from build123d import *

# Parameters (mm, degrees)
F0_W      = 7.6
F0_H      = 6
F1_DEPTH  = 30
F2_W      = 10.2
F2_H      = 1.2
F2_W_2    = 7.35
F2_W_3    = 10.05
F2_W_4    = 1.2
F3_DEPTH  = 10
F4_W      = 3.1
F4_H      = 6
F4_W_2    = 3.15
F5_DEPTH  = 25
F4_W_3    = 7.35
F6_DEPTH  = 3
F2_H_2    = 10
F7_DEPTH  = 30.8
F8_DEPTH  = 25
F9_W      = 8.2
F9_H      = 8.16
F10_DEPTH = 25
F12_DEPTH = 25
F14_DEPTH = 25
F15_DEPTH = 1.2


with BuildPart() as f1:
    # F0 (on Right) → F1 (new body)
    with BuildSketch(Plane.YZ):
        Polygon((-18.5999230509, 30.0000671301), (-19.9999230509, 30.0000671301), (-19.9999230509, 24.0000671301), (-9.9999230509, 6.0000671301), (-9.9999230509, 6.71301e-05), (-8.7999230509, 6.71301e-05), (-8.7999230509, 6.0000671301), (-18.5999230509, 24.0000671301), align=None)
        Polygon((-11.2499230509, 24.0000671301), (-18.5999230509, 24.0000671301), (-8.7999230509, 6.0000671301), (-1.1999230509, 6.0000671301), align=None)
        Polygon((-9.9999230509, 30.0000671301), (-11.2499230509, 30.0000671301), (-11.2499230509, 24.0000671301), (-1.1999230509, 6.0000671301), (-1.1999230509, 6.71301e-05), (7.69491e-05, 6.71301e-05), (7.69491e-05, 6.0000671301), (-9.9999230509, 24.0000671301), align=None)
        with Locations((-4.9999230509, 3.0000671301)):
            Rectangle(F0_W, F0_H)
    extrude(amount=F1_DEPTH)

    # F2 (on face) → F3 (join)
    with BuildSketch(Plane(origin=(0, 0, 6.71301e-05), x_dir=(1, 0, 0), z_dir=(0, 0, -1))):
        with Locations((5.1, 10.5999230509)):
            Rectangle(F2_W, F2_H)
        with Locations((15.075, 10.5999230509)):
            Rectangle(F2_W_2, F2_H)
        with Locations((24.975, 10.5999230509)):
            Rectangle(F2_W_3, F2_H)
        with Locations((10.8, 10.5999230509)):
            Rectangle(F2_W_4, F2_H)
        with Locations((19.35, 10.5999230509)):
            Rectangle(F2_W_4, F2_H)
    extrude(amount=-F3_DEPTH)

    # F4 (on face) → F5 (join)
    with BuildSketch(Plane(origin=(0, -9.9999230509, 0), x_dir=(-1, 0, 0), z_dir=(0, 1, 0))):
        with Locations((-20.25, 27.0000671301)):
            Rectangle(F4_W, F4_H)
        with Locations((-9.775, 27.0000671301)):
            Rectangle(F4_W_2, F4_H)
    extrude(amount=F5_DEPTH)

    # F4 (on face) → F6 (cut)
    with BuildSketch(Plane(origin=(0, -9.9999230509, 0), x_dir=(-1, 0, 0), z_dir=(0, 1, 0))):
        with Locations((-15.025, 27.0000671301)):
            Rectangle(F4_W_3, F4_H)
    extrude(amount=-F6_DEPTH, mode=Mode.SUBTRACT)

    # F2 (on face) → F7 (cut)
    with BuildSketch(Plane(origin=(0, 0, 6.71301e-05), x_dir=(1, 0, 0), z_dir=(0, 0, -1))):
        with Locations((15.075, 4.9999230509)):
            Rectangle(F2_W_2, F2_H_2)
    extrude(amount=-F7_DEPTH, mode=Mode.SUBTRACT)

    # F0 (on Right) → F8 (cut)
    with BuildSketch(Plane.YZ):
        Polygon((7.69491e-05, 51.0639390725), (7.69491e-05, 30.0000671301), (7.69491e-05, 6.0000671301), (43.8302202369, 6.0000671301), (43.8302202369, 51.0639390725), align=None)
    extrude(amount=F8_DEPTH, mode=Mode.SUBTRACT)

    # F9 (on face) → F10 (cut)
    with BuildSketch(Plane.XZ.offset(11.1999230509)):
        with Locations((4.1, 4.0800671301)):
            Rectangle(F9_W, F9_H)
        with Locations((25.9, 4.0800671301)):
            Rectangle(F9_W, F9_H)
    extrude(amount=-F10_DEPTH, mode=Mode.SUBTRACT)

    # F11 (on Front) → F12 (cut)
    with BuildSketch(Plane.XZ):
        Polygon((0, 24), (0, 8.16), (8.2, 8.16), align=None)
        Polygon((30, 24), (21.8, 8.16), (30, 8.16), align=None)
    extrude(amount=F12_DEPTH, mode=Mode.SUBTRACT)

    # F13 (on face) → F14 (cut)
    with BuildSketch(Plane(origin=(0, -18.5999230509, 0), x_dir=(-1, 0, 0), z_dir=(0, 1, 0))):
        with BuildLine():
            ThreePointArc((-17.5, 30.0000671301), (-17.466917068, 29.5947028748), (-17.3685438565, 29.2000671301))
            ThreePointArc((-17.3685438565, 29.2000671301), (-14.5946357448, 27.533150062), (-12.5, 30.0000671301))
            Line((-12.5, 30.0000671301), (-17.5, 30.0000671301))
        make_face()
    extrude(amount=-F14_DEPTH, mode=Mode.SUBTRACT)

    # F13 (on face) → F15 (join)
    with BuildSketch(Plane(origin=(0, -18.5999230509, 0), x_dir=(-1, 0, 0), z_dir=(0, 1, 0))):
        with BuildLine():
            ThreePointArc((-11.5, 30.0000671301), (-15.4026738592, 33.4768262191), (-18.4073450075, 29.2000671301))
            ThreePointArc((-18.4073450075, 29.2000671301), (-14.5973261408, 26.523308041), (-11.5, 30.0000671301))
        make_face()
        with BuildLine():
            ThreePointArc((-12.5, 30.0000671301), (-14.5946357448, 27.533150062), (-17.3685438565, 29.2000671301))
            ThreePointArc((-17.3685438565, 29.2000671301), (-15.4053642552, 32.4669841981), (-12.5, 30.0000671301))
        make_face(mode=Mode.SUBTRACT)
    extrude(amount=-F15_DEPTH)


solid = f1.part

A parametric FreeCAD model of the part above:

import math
import FreeCAD as App
import Part
import Sketcher
from FreeCAD import Vector
Q = App.Units.Quantity

doc = App.newDocument("Part")
body = doc.addObject("PartDesign::Body", "Body")

# Sketch on YZ plane
sketch1 = doc.addObject("Sketcher::SketchObject", "Sketch")
body.addObject(sketch1)
sketch1.AttachmentSupport = (doc.YZ_Plane, [""])
sketch1.MapMode = "FlatFace"
sketch1.addGeometry(Part.LineSegment(Vector(-18.6, 30, 0), Vector(-20, 30, 0)), False)
sketch1.addGeometry(Part.LineSegment(Vector(-20, 30, 0), Vector(-20, 24, 0)), False)
sketch1.addGeometry(Part.LineSegment(Vector(-20, 24, 0), Vector(-10, 6, 0)), False)
sketch1.addGeometry(Part.LineSegment(Vector(-10, 6, 0), Vector(-10, 0, 0)), False)
sketch1.addGeometry(Part.LineSegment(Vector(-10, 0, 0), Vector(0, 0, 0)), False)
sketch1.addGeometry(Part.LineSegment(Vector(0, 0, 0), Vector(0, 6, 0)), False)
sketch1.addGeometry(Part.LineSegment(Vector(0, 6, 0), Vector(-10, 24, 0)), False)
sketch1.addGeometry(Part.LineSegment(Vector(-10, 24, 0), Vector(-10, 30, 0)), False)
sketch1.addGeometry(Part.LineSegment(Vector(-10, 30, 0), Vector(-11.2, 30, 0)), False)
sketch1.addGeometry(Part.LineSegment(Vector(-11.2, 30, 0), Vector(-11.2, 24, 0)), False)
sketch1.addGeometry(Part.LineSegment(Vector(-11.2, 24, 0), Vector(-18.6, 24, 0)), False)
sketch1.addGeometry(Part.LineSegment(Vector(-18.6, 24, 0), Vector(-18.6, 30, 0)), False)
sketch1.addConstraint(Sketcher.Constraint("Coincident", 0, 2, 1, 1))
sketch1.addConstraint(Sketcher.Constraint("Coincident", 1, 2, 2, 1))
sketch1.addConstraint(Sketcher.Constraint("Coincident", 2, 2, 3, 1))
sketch1.addConstraint(Sketcher.Constraint("Coincident", 3, 2, 4, 1))
sketch1.addConstraint(Sketcher.Constraint("Coincident", 4, 2, 5, 1))
sketch1.addConstraint(Sketcher.Constraint("Coincident", 5, 2, 6, 1))
sketch1.addConstraint(Sketcher.Constraint("Coincident", 6, 2, 7, 1))
sketch1.addConstraint(Sketcher.Constraint("Coincident", 7, 2, 8, 1))
sketch1.addConstraint(Sketcher.Constraint("Coincident", 8, 2, 9, 1))
sketch1.addConstraint(Sketcher.Constraint("Coincident", 9, 2, 10, 1))
sketch1.addConstraint(Sketcher.Constraint("Coincident", 10, 2, 11, 1))
sketch1.addConstraint(Sketcher.Constraint("Coincident", 11, 2, 0, 1))
sketch1.addConstraint(Sketcher.Constraint("Horizontal", 0))
sketch1.addConstraint(Sketcher.Constraint("Vertical", 1))
sketch1.addConstraint(Sketcher.Constraint("Vertical", 3))
sketch1.addConstraint(Sketcher.Constraint("Horizontal", 4))
sketch1.addConstraint(Sketcher.Constraint("Vertical", 5))
sketch1.addConstraint(Sketcher.Constraint("Vertical", 7))
sketch1.addConstraint(Sketcher.Constraint("Horizontal", 8))
sketch1.addConstraint(Sketcher.Constraint("Vertical", 9))
sketch1.addConstraint(Sketcher.Constraint("Horizontal", 10))
sketch1.addConstraint(Sketcher.Constraint("Vertical", 11))
sketch1.addConstraint(Sketcher.Constraint("Parallel", 2, 6))
sketch1.addConstraint(Sketcher.Constraint("Horizontal", 2, 2, 5, 2))
sketch1.addConstraint(Sketcher.Constraint("Horizontal", 1, 2, 6, 2))
sketch1.addConstraint(Sketcher.Constraint("Horizontal", 0, 2, 7, 2))
sketch1.addConstraint(Sketcher.Constraint("Horizontal", 6, 2, 9, 2))
sketch1.addConstraint(Sketcher.Constraint("Vertical", 3, 2, 6, 2))
sketch1.addConstraint(Sketcher.Constraint("Equal", 1, 3))
sketch1.addConstraint(Sketcher.Constraint("DistanceX", 4, 1, 4, 2, Q("10 mm")))
sketch1.addConstraint(Sketcher.Constraint("DistanceY", 1, 2, 1, 1, Q("6 mm")))
sketch1.addConstraint(Sketcher.Constraint("DistanceX", 0, 2, 0, 1, Q("1.4 mm")))
sketch1.addConstraint(Sketcher.Constraint("DistanceY", 2, 2, 1, 2, Q("18 mm")))
sketch1.addConstraint(Sketcher.Constraint("DistanceX", 8, 2, 8, 1, Q("1.25 mm")))
sketch1.addConstraint(Sketcher.Constraint("DistanceX", 0, 2, -1, 1, Q("19.999923 mm")))
sketch1.addConstraint(Sketcher.Constraint("DistanceY", -1, 1, 0, 2, Q("30.000067 mm")))
pad1 = doc.addObject("PartDesign::Pad", "Pad")
body.addObject(pad1)
pad1.Profile = sketch1
pad1.Length = 30

# Sketch on XY plane
sketch2 = doc.addObject("Sketcher::SketchObject", "Sketch001")
body.addObject(sketch2)
sketch2.AttachmentSupport = (doc.XY_Plane, [""])
sketch2.MapMode = "FlatFace"
sketch2.AttachmentOffset = App.Placement(Vector(0, 0, 0.000067), App.Rotation())
sketch2.addGeometry(Part.LineSegment(Vector(0, -11.2, 0), Vector(0, -10, 0)), False)
sketch2.addGeometry(Part.LineSegment(Vector(0, -10, 0), Vector(30, -10, 0)), False)
sketch2.addGeometry(Part.LineSegment(Vector(30, -10, 0), Vector(30, -11.2, 0)), False)
sketch2.addGeometry(Part.LineSegment(Vector(30, -11.2, 0), Vector(0, -11.2, 0)), False)
sketch2.addConstraint(Sketcher.Constraint("Coincident", 0, 2, 1, 1))
sketch2.addConstraint(Sketcher.Constraint("Coincident", 1, 2, 2, 1))
sketch2.addConstraint(Sketcher.Constraint("Coincident", 2, 2, 3, 1))
sketch2.addConstraint(Sketcher.Constraint("Coincident", 3, 2, 0, 1))
sketch2.addConstraint(Sketcher.Constraint("Vertical", 0))
sketch2.addConstraint(Sketcher.Constraint("Horizontal", 1))
sketch2.addConstraint(Sketcher.Constraint("Vertical", 2))
sketch2.addConstraint(Sketcher.Constraint("Horizontal", 3))
sketch2.addConstraint(Sketcher.Constraint("PointOnObject", 0, 2, -2))
sketch2.addConstraint(Sketcher.Constraint("DistanceX", 1, 1, 1, 2, Q("30 mm")))
sketch2.addConstraint(Sketcher.Constraint("DistanceY", 0, 1, 0, 2, Q("1.2 mm")))
sketch2.addConstraint(Sketcher.Constraint("DistanceY", 0, 2, -1, 1, Q("9.999923 mm")))
pad2 = doc.addObject("PartDesign::Pad", "Pad001")
body.addObject(pad2)
pad2.Profile = sketch2
pad2.Length = 10

# Sketch on XZ plane
sketch3 = doc.addObject("Sketcher::SketchObject", "Sketch002")
body.addObject(sketch3)
sketch3.AttachmentSupport = (doc.XZ_Plane, [""])
sketch3.MapMode = "FlatFace"
sketch3.AttachmentOffset = App.Placement(Vector(0, 0, 9.999923), App.Rotation())
sketch3.addGeometry(Part.LineSegment(Vector(21.8, 30, 0), Vector(21.8, 24, 0)), False)
sketch3.addGeometry(Part.LineSegment(Vector(21.8, 24, 0), Vector(18.7, 24, 0)), False)
sketch3.addGeometry(Part.LineSegment(Vector(18.7, 24, 0), Vector(18.7, 30, 0)), False)
sketch3.addGeometry(Part.LineSegment(Vector(18.7, 30, 0), Vector(21.8, 30, 0)), False)
sketch3.addGeometry(Part.LineSegment(Vector(11.3, 30, 0), Vector(11.3, 24, 0)), False)
sketch3.addGeometry(Part.LineSegment(Vector(11.3, 24, 0), Vector(8.2, 24, 0)), False)
sketch3.addGeometry(Part.LineSegment(Vector(8.2, 24, 0), Vector(8.2, 30, 0)), False)
sketch3.addGeometry(Part.LineSegment(Vector(8.2, 30, 0), Vector(11.3, 30, 0)), False)
sketch3.addConstraint(Sketcher.Constraint("Coincident", 0, 2, 1, 1))
sketch3.addConstraint(Sketcher.Constraint("Coincident", 1, 2, 2, 1))
sketch3.addConstraint(Sketcher.Constraint("Coincident", 2, 2, 3, 1))
sketch3.addConstraint(Sketcher.Constraint("Coincident", 3, 2, 0, 1))
sketch3.addConstraint(Sketcher.Constraint("Coincident", 4, 2, 5, 1))
sketch3.addConstraint(Sketcher.Constraint("Coincident", 5, 2, 6, 1))
sketch3.addConstraint(Sketcher.Constraint("Coincident", 6, 2, 7, 1))
sketch3.addConstraint(Sketcher.Constraint("Coincident", 7, 2, 4, 1))
sketch3.addConstraint(Sketcher.Constraint("Vertical", 0))
sketch3.addConstraint(Sketcher.Constraint("Horizontal", 1))
sketch3.addConstraint(Sketcher.Constraint("Vertical", 2))
sketch3.addConstraint(Sketcher.Constraint("Horizontal", 3))
sketch3.addConstraint(Sketcher.Constraint("Vertical", 4))
sketch3.addConstraint(Sketcher.Constraint("Horizontal", 5))
sketch3.addConstraint(Sketcher.Constraint("Vertical", 6))
sketch3.addConstraint(Sketcher.Constraint("Horizontal", 7))
sketch3.addConstraint(Sketcher.Constraint("Horizontal", 1, 2, 4, 2))
sketch3.addConstraint(Sketcher.Constraint("Horizontal", 3, 2, 6, 2))
sketch3.addConstraint(Sketcher.Constraint("DistanceY", 0, 2, 0, 1, Q("6 mm")))
sketch3.addConstraint(Sketcher.Constraint("DistanceX", 1, 2, 1, 1, Q("3.1 mm")))
sketch3.addConstraint(Sketcher.Constraint("DistanceX", 5, 2, 5, 1, Q("3.15 mm")))
sketch3.addConstraint(Sketcher.Constraint("DistanceX", -1, 1, 0, 2, Q("21.8 mm")))
sketch3.addConstraint(Sketcher.Constraint("DistanceX", -1, 1, 5, 2, Q("8.2 mm")))
sketch3.addConstraint(Sketcher.Constraint("DistanceY", -1, 1, 0, 2, Q("24.000067 mm")))
pad3 = doc.addObject("PartDesign::Pad", "Pad002")
body.addObject(pad3)
pad3.Profile = sketch3
pad3.Length = 25
pad3.Reversed = True

# Sketch on XZ plane
sketch4 = doc.addObject("Sketcher::SketchObject", "Sketch003")
body.addObject(sketch4)
sketch4.AttachmentSupport = (doc.XZ_Plane, [""])
sketch4.MapMode = "FlatFace"
sketch4.AttachmentOffset = App.Placement(Vector(0, 0, 9.999923), App.Rotation())
sketch4.addGeometry(Part.LineSegment(Vector(19, 30, 0), Vector(19, 24, 0)), False)
sketch4.addGeometry(Part.LineSegment(Vector(19, 24, 0), Vector(11, 24, 0)), False)
sketch4.addGeometry(Part.LineSegment(Vector(11, 24, 0), Vector(11, 30, 0)), False)
sketch4.addGeometry(Part.LineSegment(Vector(11, 30, 0), Vector(19, 30, 0)), False)
sketch4.addConstraint(Sketcher.Constraint("Coincident", 0, 2, 1, 1))
sketch4.addConstraint(Sketcher.Constraint("Coincident", 1, 2, 2, 1))
sketch4.addConstraint(Sketcher.Constraint("Coincident", 2, 2, 3, 1))
sketch4.addConstraint(Sketcher.Constraint("Coincident", 3, 2, 0, 1))
sketch4.addConstraint(Sketcher.Constraint("Vertical", 0))
sketch4.addConstraint(Sketcher.Constraint("Horizontal", 1))
sketch4.addConstraint(Sketcher.Constraint("Vertical", 2))
sketch4.addConstraint(Sketcher.Constraint("Horizontal", 3))
sketch4.addConstraint(Sketcher.Constraint("DistanceY", 0, 2, 0, 1, Q("6 mm")))
sketch4.addConstraint(Sketcher.Constraint("DistanceX", 1, 2, 1, 1, Q("7.35 mm")))
sketch4.addConstraint(Sketcher.Constraint("DistanceX", -1, 1, 0, 2, Q("18.7 mm")))
sketch4.addConstraint(Sketcher.Constraint("DistanceY", -1, 1, 0, 2, Q("24.000067 mm")))
pocket1 = doc.addObject("PartDesign::Pocket", "Pocket")
body.addObject(pocket1)
pocket1.Profile = sketch4
pocket1.Length = 3
pocket1.Reversed = True

# Sketch on XY plane
sketch5 = doc.addObject("Sketcher::SketchObject", "Sketch004")
body.addObject(sketch5)
sketch5.AttachmentSupport = (doc.XY_Plane, [""])
sketch5.MapMode = "FlatFace"
sketch5.AttachmentOffset = App.Placement(Vector(0, 0, 0.000067), App.Rotation())
sketch5.addGeometry(Part.LineSegment(Vector(11, -10, 0), Vector(11, 0, 0)), False)
sketch5.addGeometry(Part.LineSegment(Vector(11, 0, 0), Vector(19, 0, 0)), False)
sketch5.addGeometry(Part.LineSegment(Vector(19, 0, 0), Vector(19, -10, 0)), False)
sketch5.addGeometry(Part.LineSegment(Vector(19, -10, 0), Vector(11, -10, 0)), False)
sketch5.addConstraint(Sketcher.Constraint("Coincident", 0, 2, 1, 1))
sketch5.addConstraint(Sketcher.Constraint("Coincident", 1, 2, 2, 1))
sketch5.addConstraint(Sketcher.Constraint("Coincident", 2, 2, 3, 1))
sketch5.addConstraint(Sketcher.Constraint("Coincident", 3, 2, 0, 1))
sketch5.addConstraint(Sketcher.Constraint("Vertical", 0))
sketch5.addConstraint(Sketcher.Constraint("Horizontal", 1))
sketch5.addConstraint(Sketcher.Constraint("Vertical", 2))
sketch5.addConstraint(Sketcher.Constraint("Horizontal", 3))
sketch5.addConstraint(Sketcher.Constraint("DistanceY", 0, 1, 0, 2, Q("10 mm")))
sketch5.addConstraint(Sketcher.Constraint("DistanceX", 1, 1, 1, 2, Q("7.35 mm")))
sketch5.addConstraint(Sketcher.Constraint("DistanceX", -1, 1, 0, 2, Q("11.4 mm")))
sketch5.addConstraint(Sketcher.Constraint("DistanceY", 2, 2, -1, 1, Q("9.999923 mm")))
pocket2 = doc.addObject("PartDesign::Pocket", "Pocket001")
body.addObject(pocket2)
pocket2.Profile = sketch5
pocket2.Length = 30.8
pocket2.Reversed = True

# Sketch on YZ plane
sketch6 = doc.addObject("Sketcher::SketchObject", "Sketch005")
body.addObject(sketch6)
sketch6.AttachmentSupport = (doc.YZ_Plane, [""])
sketch6.MapMode = "FlatFace"
sketch6.addGeometry(Part.LineSegment(Vector(0, 51, 0), Vector(0, 6, 0)), False)
sketch6.addGeometry(Part.LineSegment(Vector(0, 6, 0), Vector(44, 6, 0)), False)
sketch6.addGeometry(Part.LineSegment(Vector(44, 6, 0), Vector(44, 51, 0)), False)
sketch6.addGeometry(Part.LineSegment(Vector(44, 51, 0), Vector(0, 51, 0)), False)
sketch6.addConstraint(Sketcher.Constraint("Coincident", 0, 2, 1, 1))
sketch6.addConstraint(Sketcher.Constraint("Coincident", 1, 2, 2, 1))
sketch6.addConstraint(Sketcher.Constraint("Coincident", 2, 2, 3, 1))
sketch6.addConstraint(Sketcher.Constraint("Coincident", 3, 2, 0, 1))
sketch6.addConstraint(Sketcher.Constraint("Vertical", 0))
sketch6.addConstraint(Sketcher.Constraint("Horizontal", 1))
sketch6.addConstraint(Sketcher.Constraint("Vertical", 2))
sketch6.addConstraint(Sketcher.Constraint("Horizontal", 3))
sketch6.addConstraint(Sketcher.Constraint("DistanceY", 0, 2, 0, 1, Q("45.063872 mm")))
sketch6.addConstraint(Sketcher.Constraint("DistanceX", 1, 1, 1, 2, Q("43.830143 mm")))
sketch6.addConstraint(Sketcher.Constraint("DistanceX", -1, 1, 1, 2, Q("43.83022 mm")))
sketch6.addConstraint(Sketcher.Constraint("DistanceY", -1, 1, 2, 2, Q("51.063939 mm")))
pocket3 = doc.addObject("PartDesign::Pocket", "Pocket002")
body.addObject(pocket3)
pocket3.Profile = sketch6
pocket3.Length = 25
pocket3.Reversed = True

# Sketch on XZ plane
sketch7 = doc.addObject("Sketcher::SketchObject", "Sketch006")
body.addObject(sketch7)
sketch7.AttachmentSupport = (doc.XZ_Plane, [""])
sketch7.MapMode = "FlatFace"
sketch7.AttachmentOffset = App.Placement(Vector(0, 0, 11.199923), App.Rotation())
sketch7.addGeometry(Part.LineSegment(Vector(0, 8, 0), Vector(0, 0, 0)), False)
sketch7.addGeometry(Part.LineSegment(Vector(0, 0, 0), Vector(8, 0, 0)), False)
sketch7.addGeometry(Part.LineSegment(Vector(8, 0, 0), Vector(8, 8, 0)), False)
sketch7.addGeometry(Part.LineSegment(Vector(8, 8, 0), Vector(0, 8, 0)), False)
sketch7.addGeometry(Part.LineSegment(Vector(22, 8, 0), Vector(22, 0, 0)), False)
sketch7.addGeometry(Part.LineSegment(Vector(22, 0, 0), Vector(30, 0, 0)), False)
sketch7.addGeometry(Part.LineSegment(Vector(30, 0, 0), Vector(30, 8, 0)), False)
sketch7.addGeometry(Part.LineSegment(Vector(30, 8, 0), Vector(22, 8, 0)), False)
sketch7.addConstraint(Sketcher.Constraint("Coincident", 0, 2, 1, 1))
sketch7.addConstraint(Sketcher.Constraint("Coincident", 1, 2, 2, 1))
sketch7.addConstraint(Sketcher.Constraint("Coincident", 2, 2, 3, 1))
sketch7.addConstraint(Sketcher.Constraint("Coincident", 3, 2, 0, 1))
sketch7.addConstraint(Sketcher.Constraint("Coincident", 4, 2, 5, 1))
sketch7.addConstraint(Sketcher.Constraint("Coincident", 5, 2, 6, 1))
sketch7.addConstraint(Sketcher.Constraint("Coincident", 6, 2, 7, 1))
sketch7.addConstraint(Sketcher.Constraint("Coincident", 7, 2, 4, 1))
sketch7.addConstraint(Sketcher.Constraint("Vertical", 0))
sketch7.addConstraint(Sketcher.Constraint("Horizontal", 1))
sketch7.addConstraint(Sketcher.Constraint("Vertical", 2))
sketch7.addConstraint(Sketcher.Constraint("Horizontal", 3))
sketch7.addConstraint(Sketcher.Constraint("Vertical", 4))
sketch7.addConstraint(Sketcher.Constraint("Horizontal", 5))
sketch7.addConstraint(Sketcher.Constraint("Vertical", 6))
sketch7.addConstraint(Sketcher.Constraint("Horizontal", 7))
sketch7.addConstraint(Sketcher.Constraint("PointOnObject", 0, 2, -2))
sketch7.addConstraint(Sketcher.Constraint("Horizontal", 1, 2, 4, 2))
sketch7.addConstraint(Sketcher.Constraint("Horizontal", 3, 2, 6, 2))
sketch7.addConstraint(Sketcher.Constraint("Equal", 3, 5))
sketch7.addConstraint(Sketcher.Constraint("DistanceX", 1, 1, 1, 2, Q("8.2 mm")))
sketch7.addConstraint(Sketcher.Constraint("DistanceX", -1, 1, 5, 2, Q("30 mm")))
sketch7.addConstraint(Sketcher.Constraint("DistanceY", 0, 2, 0, 1, Q("8.16 mm")))
sketch7.addConstraint(Sketcher.Constraint("DistanceY", -1, 1, 2, 2, Q("8.160067 mm")))
pocket4 = doc.addObject("PartDesign::Pocket", "Pocket003")
body.addObject(pocket4)
pocket4.Profile = sketch7
pocket4.Length = 25

# Sketch on XZ plane
sketch8 = doc.addObject("Sketcher::SketchObject", "Sketch007")
body.addObject(sketch8)
sketch8.AttachmentSupport = (doc.XZ_Plane, [""])
sketch8.MapMode = "FlatFace"
sketch8.addGeometry(Part.LineSegment(Vector(0, 24, 0), Vector(0, 8, 0)), False)
sketch8.addGeometry(Part.LineSegment(Vector(0, 8, 0), Vector(8, 8, 0)), False)
sketch8.addGeometry(Part.LineSegment(Vector(8, 8, 0), Vector(0, 24, 0)), False)
sketch8.addGeometry(Part.LineSegment(Vector(30, 24, 0), Vector(22, 8, 0)), False)
sketch8.addGeometry(Part.LineSegment(Vector(22, 8, 0), Vector(30, 8, 0)), False)
sketch8.addGeometry(Part.LineSegment(Vector(30, 8, 0), Vector(30, 24, 0)), False)
sketch8.addConstraint(Sketcher.Constraint("Coincident", 0, 2, 1, 1))
sketch8.addConstraint(Sketcher.Constraint("Coincident", 1, 2, 2, 1))
sketch8.addConstraint(Sketcher.Constraint("Coincident", 2, 2, 0, 1))
sketch8.addConstraint(Sketcher.Constraint("Coincident", 3, 2, 4, 1))
sketch8.addConstraint(Sketcher.Constraint("Coincident", 4, 2, 5, 1))
sketch8.addConstraint(Sketcher.Constraint("Coincident", 5, 2, 3, 1))
sketch8.addConstraint(Sketcher.Constraint("Vertical", 0))
sketch8.addConstraint(Sketcher.Constraint("Horizontal", 1))
sketch8.addConstraint(Sketcher.Constraint("Horizontal", 4))
sketch8.addConstraint(Sketcher.Constraint("Vertical", 5))
sketch8.addConstraint(Sketcher.Constraint("PointOnObject", 0, 2, -2))
sketch8.addConstraint(Sketcher.Constraint("Horizontal", 1, 2, 3, 2))
sketch8.addConstraint(Sketcher.Constraint("Horizontal", 2, 2, 5, 2))
sketch8.addConstraint(Sketcher.Constraint("Equal", 1, 4))
sketch8.addConstraint(Sketcher.Constraint("DistanceX", 1, 1, 1, 2, Q("8.2 mm")))
sketch8.addConstraint(Sketcher.Constraint("DistanceY", -1, 1, 2, 2, Q("24 mm")))
sketch8.addConstraint(Sketcher.Constraint("DistanceX", -1, 1, 4, 2, Q("30 mm")))
sketch8.addConstraint(Sketcher.Constraint("DistanceY", 0, 2, 0, 1, Q("15.84 mm")))
pocket5 = doc.addObject("PartDesign::Pocket", "Pocket004")
body.addObject(pocket5)
pocket5.Profile = sketch8
pocket5.Length = 25
pocket5.Reversed = True

# Sketch on XZ plane
sketch9 = doc.addObject("Sketcher::SketchObject", "Sketch008")
body.addObject(sketch9)
sketch9.AttachmentSupport = (doc.XZ_Plane, [""])
sketch9.MapMode = "FlatFace"
sketch9.AttachmentOffset = App.Placement(Vector(0, 0, 18.599923), App.Rotation())
sketch9.addGeometry(Part.ArcOfCircle(Part.Circle(Vector(15, 30, 0), Vector(0, 0, 1), 2.5), math.radians(-18.66), math.radians(0)), False)
sketch9.addGeometry(Part.ArcOfCircle(Part.Circle(Vector(15, 30, 0), Vector(0, 0, 1), 2.5), math.radians(180), math.radians(341)), False)
sketch9.addGeometry(Part.LineSegment(Vector(12.5, 30, 0), Vector(17.5, 30, 0)), False)
sketch9.addConstraint(Sketcher.Constraint("Tangent", 0, 1, 1, 2))
sketch9.addConstraint(Sketcher.Constraint("Coincident", 1, 1, 2, 1))
sketch9.addConstraint(Sketcher.Constraint("Coincident", 2, 2, 0, 2))
sketch9.addConstraint(Sketcher.Constraint("Horizontal", 2))
sketch9.addConstraint(Sketcher.Constraint("Equal", 0, 1))
sketch9.addConstraint(Sketcher.Constraint("Horizontal", 0, 3, 1, 1))
sketch9.addConstraint(Sketcher.Constraint("Radius", 0, Q("2.5 mm")))
sketch9.addConstraint(Sketcher.Constraint("DistanceX", -1, 1, 0, 3, Q("15 mm")))
sketch9.addConstraint(Sketcher.Constraint("DistanceY", 0, 1, 1, 3, Q("0.8 mm")))
sketch9.addConstraint(Sketcher.Constraint("DistanceY", -1, 1, 0, 3, Q("30.000067 mm")))
pocket6 = doc.addObject("PartDesign::Pocket", "Pocket005")
body.addObject(pocket6)
pocket6.Profile = sketch9
pocket6.Length = 25
pocket6.Reversed = True

# Sketch on XZ plane
sketch10 = doc.addObject("Sketcher::SketchObject", "Sketch009")
body.addObject(sketch10)
sketch10.AttachmentSupport = (doc.XZ_Plane, [""])
sketch10.MapMode = "FlatFace"
sketch10.AttachmentOffset = App.Placement(Vector(0, 0, 18.599923), App.Rotation())
sketch10.addGeometry(Part.ArcOfCircle(Part.Circle(Vector(15, 30, 0), Vector(0, 0, 1), 3.5), math.radians(-13), math.radians(180)), False)
sketch10.addGeometry(Part.ArcOfCircle(Part.Circle(Vector(15, 30, 0), Vector(0, 0, 1), 3.5), math.radians(180), math.radians(347)), False)
sketch10.addGeometry(Part.ArcOfCircle(Part.Circle(Vector(15, 30, 0), Vector(0, 0, 1), 2.5), math.radians(-19), math.radians(180)), False)
sketch10.addGeometry(Part.ArcOfCircle(Part.Circle(Vector(15, 30, 0), Vector(0, 0, 1), 2.5), math.radians(180), math.radians(341)), False)
sketch10.addConstraint(Sketcher.Constraint("Tangent", 0, 1, 1, 2))
sketch10.addConstraint(Sketcher.Constraint("Coincident", 1, 1, 0, 2))
sketch10.addConstraint(Sketcher.Constraint("Tangent", 2, 1, 3, 2))
sketch10.addConstraint(Sketcher.Constraint("Coincident", 3, 1, 2, 2))
sketch10.addConstraint(Sketcher.Constraint("Coincident", 2, 3, 0, 3))
sketch10.addConstraint(Sketcher.Constraint("Horizontal", 3, 3, 1, 1))
sketch10.addConstraint(Sketcher.Constraint("Horizontal", 0, 1, 2, 1))
sketch10.addConstraint(Sketcher.Constraint("Horizontal", 1, 1, 3, 1))
sketch10.addConstraint(Sketcher.Constraint("Radius", 0, Q("3.5 mm")))
sketch10.addConstraint(Sketcher.Constraint("Radius", 2, Q("2.5 mm")))
sketch10.addConstraint(Sketcher.Constraint("DistanceX", -1, 1, 0, 3, Q("15 mm")))
sketch10.addConstraint(Sketcher.Constraint("DistanceY", 0, 1, 0, 3, Q("0.8 mm")))
sketch10.addConstraint(Sketcher.Constraint("DistanceY", -1, 1, 0, 3, Q("30.000067 mm")))
pad4 = doc.addObject("PartDesign::Pad", "Pad003")
body.addObject(pad4)
pad4.Profile = sketch10
pad4.Length = 1.2

doc.recompute()
